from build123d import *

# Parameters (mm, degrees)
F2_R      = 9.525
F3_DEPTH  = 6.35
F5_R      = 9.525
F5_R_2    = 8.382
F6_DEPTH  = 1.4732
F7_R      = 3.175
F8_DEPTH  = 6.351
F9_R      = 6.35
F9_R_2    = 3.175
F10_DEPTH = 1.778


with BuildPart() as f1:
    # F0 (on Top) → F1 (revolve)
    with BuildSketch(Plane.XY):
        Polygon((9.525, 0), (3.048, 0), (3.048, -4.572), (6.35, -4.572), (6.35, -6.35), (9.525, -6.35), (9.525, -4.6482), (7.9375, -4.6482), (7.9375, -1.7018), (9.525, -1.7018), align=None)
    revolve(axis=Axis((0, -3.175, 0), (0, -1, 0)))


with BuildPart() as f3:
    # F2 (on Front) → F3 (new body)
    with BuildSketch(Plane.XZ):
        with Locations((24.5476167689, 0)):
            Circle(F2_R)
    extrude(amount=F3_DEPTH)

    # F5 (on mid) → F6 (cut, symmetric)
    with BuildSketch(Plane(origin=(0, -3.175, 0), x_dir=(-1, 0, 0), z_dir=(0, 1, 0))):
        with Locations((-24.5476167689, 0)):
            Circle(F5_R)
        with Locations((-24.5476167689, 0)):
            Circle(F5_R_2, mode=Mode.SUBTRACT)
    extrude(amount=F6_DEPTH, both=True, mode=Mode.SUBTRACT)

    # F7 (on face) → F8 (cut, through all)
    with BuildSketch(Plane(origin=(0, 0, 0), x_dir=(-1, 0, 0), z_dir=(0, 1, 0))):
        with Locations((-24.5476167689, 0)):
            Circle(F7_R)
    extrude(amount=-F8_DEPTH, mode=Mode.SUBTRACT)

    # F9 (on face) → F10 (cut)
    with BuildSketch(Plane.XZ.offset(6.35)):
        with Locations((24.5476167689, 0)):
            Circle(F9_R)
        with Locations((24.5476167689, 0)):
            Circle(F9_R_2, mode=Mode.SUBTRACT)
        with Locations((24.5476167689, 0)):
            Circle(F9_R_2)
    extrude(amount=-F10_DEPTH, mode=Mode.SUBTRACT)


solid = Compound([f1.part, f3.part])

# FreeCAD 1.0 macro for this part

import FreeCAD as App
import Part
import Sketcher
from FreeCAD import Vector
Q = App.Units.Quantity


def add_polygon(sketch, points):
    """Adds a closed chain of lines whose ends are joined by coincident constraints."""
    first, n = sketch.GeometryCount, len(points)
    for a, b in zip(points, points[1:] + points[:1]):
        sketch.addGeometry(Part.LineSegment(App.Vector(*a, 0), App.Vector(*b, 0)), False)
    for i in range(n):
        sketch.addConstraint(Sketcher.Constraint("Coincident", first + i, 2, first + (i + 1) % n, 1))

doc = App.newDocument("Part")
params = doc.addObject("Spreadsheet::Sheet", "Params")
for row, (alias, value) in enumerate([
    ("sketch1_width", "0.13 in"),
    ("sketch1_height", "0.18 in"),
    ("sketch1_height2", "0.07 in"),
    ("sketch1_width2", "0.255 in"),
    ("sketch1_width3", "0.0625 in"),
    ("revolution_angle", "360 deg"),
    ("sketch2_diameter", "0.75 in"),
    ("pad1_length", "0.25 in"),
    ("sketch3_diameter", "0.75 in"),
    ("sketch3_diameter2", "0.66 in"),
    ("pocket1_length", "0.116 in"),
    ("sketch4_diameter", "0.25 in"),
    ("sketch5_diameter", "0.5 in"),
    ("pocket3_length", "0.07 in"),
], start=1):
    params.set(f"A{row}", alias)
    params.set(f"B{row}", "=" + value)
    params.setAlias(f"B{row}", alias)

body = doc.addObject("PartDesign::Body", "Body")

sketch1 = body.newObject("Sketcher::SketchObject", "Sketch")
sketch1.AttachmentSupport = (doc.getObject("XY_Plane"), [""])
sketch1.MapMode = "FlatFace"
add_polygon(sketch1, [(9.5, 0), (3, 0), (3, -4.6), (6.3, -4.6), (6.3, -6.3), (9.5, -6.3), (9.5, -4.6), (7.9, -4.6), (7.9, -1.7), (9.5, -1.7)])
sketch1.addConstraint([
    Sketcher.Constraint("Horizontal", 0),
    Sketcher.Constraint("Vertical", 1),
    Sketcher.Constraint("Horizontal", 2),
    Sketcher.Constraint("Vertical", 3),
    Sketcher.Constraint("Horizontal", 4),
    Sketcher.Constraint("Vertical", 5),
    Sketcher.Constraint("Horizontal", 6),
    Sketcher.Constraint("Vertical", 7),
    Sketcher.Constraint("Horizontal", 8),
    Sketcher.Constraint("Vertical", 9),
    Sketcher.Constraint("PointOnObject", 0, 2, -1),
    Sketcher.Constraint("Vertical", 5, 2, 8, 2),
    Sketcher.Constraint("Equal", 5, 9),
    Sketcher.Constraint("DistanceX", 2, 1, 2, 2, Q("0.13 in")),
    Sketcher.Constraint("DistanceY", 1, 2, 1, 1, Q("0.18 in")),
    Sketcher.Constraint("DistanceY", 3, 2, 3, 1, Q("0.07 in")),
    Sketcher.Constraint("DistanceX", 0, 2, 0, 1, Q("0.255 in")),
    Sketcher.Constraint("DistanceX", 6, 2, 6, 1, Q("0.0625 in")),
    Sketcher.Constraint("DistanceY", 5, 1, 5, 2, Q("0.067 in")),
    Sketcher.Constraint("DistanceX", -1, 1, 0, 2, Q("0.12 in")),
])
sketch1.setExpression("Constraints[23]", "Params.sketch1_width")
sketch1.setExpression("Constraints[24]", "Params.sketch1_height")
sketch1.setExpression("Constraints[25]", "Params.sketch1_height2")
sketch1.setExpression("Constraints[26]", "Params.sketch1_width2")
sketch1.setExpression("Constraints[27]", "Params.sketch1_width3")
revolution = body.newObject("PartDesign::Revolution", "Revolution")
revolution.Profile = sketch1
revolution.ReferenceAxis = (sketch1, ["V_Axis"])
revolution.setExpression("Angle", "Params.revolution_angle")
body2 = doc.addObject("PartDesign::Body", "Body001")

sketch2 = body2.newObject("Sketcher::SketchObject", "Sketch001")
sketch2.AttachmentSupport = (doc.getObject("XZ_Plane001"), [""])
sketch2.MapMode = "FlatFace"
sketch2.addGeometry(Part.Circle(Vector(25, 0, 0), Vector(0, 0, 1), 10), False)
sketch2.addConstraint([
    Sketcher.Constraint("PointOnObject", 0, 3, -1),
    Sketcher.Constraint("Diameter", 0, Q("0.75 in")),
    Sketcher.Constraint("DistanceX", -1, 1, 0, 3, 24.547617),
])
sketch2.setExpression("Constraints[1]", "Params.sketch2_diameter")
pad1 = body2.newObject("PartDesign::Pad", "Pad")
pad1.Profile = sketch2
pad1.setExpression("Length", "Params.pad1_length")

sketch3 = body2.newObject("Sketcher::SketchObject", "Sketch002")
sketch3.AttachmentSupport = (doc.getObject("XZ_Plane001"), [""])
sketch3.MapMode = "FlatFace"
sketch3.AttachmentOffset = App.Placement(Vector(0, 0, 0.125 * 25.4), App.Rotation())
sketch3.addGeometry([
    Part.Circle(Vector(25, 0, 0), Vector(0, 0, 1), 10),
    Part.Circle(Vector(25, 0, 0), Vector(0, 0, 1), 8),
], False)
sketch3.addConstraint([
    Sketcher.Constraint("Coincident", 1, 3, 0, 3),
    Sketcher.Constraint("PointOnObject", 0, 3, -1),
    Sketcher.Constraint("Diameter", 0, Q("0.75 in")),
    Sketcher.Constraint("Diameter", 1, Q("0.66 in")),
    Sketcher.Constraint("DistanceX", -1, 1, 0, 3, 24.547617),
])
sketch3.setExpression("Constraints[2]", "Params.sketch3_diameter")
sketch3.setExpression("Constraints[3]", "Params.sketch3_diameter2")
pocket1 = body2.newObject("PartDesign::Pocket", "Pocket")
pocket1.Profile = sketch3
pocket1.setExpression("Length", "Params.pocket1_length")
pocket1.Midplane = True

sketch4 = body2.newObject("Sketcher::SketchObject", "Sketch003")
sketch4.AttachmentSupport = (doc.getObject("XZ_Plane001"), [""])
sketch4.MapMode = "FlatFace"
sketch4.addGeometry(Part.Circle(Vector(24.5, 0, 0), Vector(0, 0, 1), 3.2), False)
sketch4.addConstraint([
    Sketcher.Constraint("PointOnObject", 0, 3, -1),
    Sketcher.Constraint("Diameter", 0, Q("0.25 in")),
    Sketcher.Constraint("DistanceX", -1, 1, 0, 3, 24.547617),
])
sketch4.setExpression("Constraints[1]", "Params.sketch4_diameter")
pocket2 = body2.newObject("PartDesign::Pocket", "Pocket001")
pocket2.Profile = sketch4
pocket2.Type = "ThroughAll"
pocket2.Reversed = True

sketch5 = body2.newObject("Sketcher::SketchObject", "Sketch004")
sketch5.AttachmentSupport = (doc.getObject("XZ_Plane001"), [""])
sketch5.MapMode = "FlatFace"
sketch5.AttachmentOffset = App.Placement(Vector(0, 0, 0.25 * 25.4), App.Rotation())
sketch5.addGeometry(Part.Circle(Vector(25, 0, 0), Vector(0, 0, 1), 6), False)
sketch5.addConstraint([
    Sketcher.Constraint("PointOnObject", 0, 3, -1),
    Sketcher.Constraint("Diameter", 0, Q("0.5 in")),
    Sketcher.Constraint("DistanceX", -1, 1, 0, 3, 24.547617),
])
sketch5.setExpression("Constraints[1]", "Params.sketch5_diameter")
pocket3 = body2.newObject("PartDesign::Pocket", "Pocket002")
pocket3.Profile = sketch5
pocket3.setExpression("Length", "Params.pocket3_length")

doc.recompute()
